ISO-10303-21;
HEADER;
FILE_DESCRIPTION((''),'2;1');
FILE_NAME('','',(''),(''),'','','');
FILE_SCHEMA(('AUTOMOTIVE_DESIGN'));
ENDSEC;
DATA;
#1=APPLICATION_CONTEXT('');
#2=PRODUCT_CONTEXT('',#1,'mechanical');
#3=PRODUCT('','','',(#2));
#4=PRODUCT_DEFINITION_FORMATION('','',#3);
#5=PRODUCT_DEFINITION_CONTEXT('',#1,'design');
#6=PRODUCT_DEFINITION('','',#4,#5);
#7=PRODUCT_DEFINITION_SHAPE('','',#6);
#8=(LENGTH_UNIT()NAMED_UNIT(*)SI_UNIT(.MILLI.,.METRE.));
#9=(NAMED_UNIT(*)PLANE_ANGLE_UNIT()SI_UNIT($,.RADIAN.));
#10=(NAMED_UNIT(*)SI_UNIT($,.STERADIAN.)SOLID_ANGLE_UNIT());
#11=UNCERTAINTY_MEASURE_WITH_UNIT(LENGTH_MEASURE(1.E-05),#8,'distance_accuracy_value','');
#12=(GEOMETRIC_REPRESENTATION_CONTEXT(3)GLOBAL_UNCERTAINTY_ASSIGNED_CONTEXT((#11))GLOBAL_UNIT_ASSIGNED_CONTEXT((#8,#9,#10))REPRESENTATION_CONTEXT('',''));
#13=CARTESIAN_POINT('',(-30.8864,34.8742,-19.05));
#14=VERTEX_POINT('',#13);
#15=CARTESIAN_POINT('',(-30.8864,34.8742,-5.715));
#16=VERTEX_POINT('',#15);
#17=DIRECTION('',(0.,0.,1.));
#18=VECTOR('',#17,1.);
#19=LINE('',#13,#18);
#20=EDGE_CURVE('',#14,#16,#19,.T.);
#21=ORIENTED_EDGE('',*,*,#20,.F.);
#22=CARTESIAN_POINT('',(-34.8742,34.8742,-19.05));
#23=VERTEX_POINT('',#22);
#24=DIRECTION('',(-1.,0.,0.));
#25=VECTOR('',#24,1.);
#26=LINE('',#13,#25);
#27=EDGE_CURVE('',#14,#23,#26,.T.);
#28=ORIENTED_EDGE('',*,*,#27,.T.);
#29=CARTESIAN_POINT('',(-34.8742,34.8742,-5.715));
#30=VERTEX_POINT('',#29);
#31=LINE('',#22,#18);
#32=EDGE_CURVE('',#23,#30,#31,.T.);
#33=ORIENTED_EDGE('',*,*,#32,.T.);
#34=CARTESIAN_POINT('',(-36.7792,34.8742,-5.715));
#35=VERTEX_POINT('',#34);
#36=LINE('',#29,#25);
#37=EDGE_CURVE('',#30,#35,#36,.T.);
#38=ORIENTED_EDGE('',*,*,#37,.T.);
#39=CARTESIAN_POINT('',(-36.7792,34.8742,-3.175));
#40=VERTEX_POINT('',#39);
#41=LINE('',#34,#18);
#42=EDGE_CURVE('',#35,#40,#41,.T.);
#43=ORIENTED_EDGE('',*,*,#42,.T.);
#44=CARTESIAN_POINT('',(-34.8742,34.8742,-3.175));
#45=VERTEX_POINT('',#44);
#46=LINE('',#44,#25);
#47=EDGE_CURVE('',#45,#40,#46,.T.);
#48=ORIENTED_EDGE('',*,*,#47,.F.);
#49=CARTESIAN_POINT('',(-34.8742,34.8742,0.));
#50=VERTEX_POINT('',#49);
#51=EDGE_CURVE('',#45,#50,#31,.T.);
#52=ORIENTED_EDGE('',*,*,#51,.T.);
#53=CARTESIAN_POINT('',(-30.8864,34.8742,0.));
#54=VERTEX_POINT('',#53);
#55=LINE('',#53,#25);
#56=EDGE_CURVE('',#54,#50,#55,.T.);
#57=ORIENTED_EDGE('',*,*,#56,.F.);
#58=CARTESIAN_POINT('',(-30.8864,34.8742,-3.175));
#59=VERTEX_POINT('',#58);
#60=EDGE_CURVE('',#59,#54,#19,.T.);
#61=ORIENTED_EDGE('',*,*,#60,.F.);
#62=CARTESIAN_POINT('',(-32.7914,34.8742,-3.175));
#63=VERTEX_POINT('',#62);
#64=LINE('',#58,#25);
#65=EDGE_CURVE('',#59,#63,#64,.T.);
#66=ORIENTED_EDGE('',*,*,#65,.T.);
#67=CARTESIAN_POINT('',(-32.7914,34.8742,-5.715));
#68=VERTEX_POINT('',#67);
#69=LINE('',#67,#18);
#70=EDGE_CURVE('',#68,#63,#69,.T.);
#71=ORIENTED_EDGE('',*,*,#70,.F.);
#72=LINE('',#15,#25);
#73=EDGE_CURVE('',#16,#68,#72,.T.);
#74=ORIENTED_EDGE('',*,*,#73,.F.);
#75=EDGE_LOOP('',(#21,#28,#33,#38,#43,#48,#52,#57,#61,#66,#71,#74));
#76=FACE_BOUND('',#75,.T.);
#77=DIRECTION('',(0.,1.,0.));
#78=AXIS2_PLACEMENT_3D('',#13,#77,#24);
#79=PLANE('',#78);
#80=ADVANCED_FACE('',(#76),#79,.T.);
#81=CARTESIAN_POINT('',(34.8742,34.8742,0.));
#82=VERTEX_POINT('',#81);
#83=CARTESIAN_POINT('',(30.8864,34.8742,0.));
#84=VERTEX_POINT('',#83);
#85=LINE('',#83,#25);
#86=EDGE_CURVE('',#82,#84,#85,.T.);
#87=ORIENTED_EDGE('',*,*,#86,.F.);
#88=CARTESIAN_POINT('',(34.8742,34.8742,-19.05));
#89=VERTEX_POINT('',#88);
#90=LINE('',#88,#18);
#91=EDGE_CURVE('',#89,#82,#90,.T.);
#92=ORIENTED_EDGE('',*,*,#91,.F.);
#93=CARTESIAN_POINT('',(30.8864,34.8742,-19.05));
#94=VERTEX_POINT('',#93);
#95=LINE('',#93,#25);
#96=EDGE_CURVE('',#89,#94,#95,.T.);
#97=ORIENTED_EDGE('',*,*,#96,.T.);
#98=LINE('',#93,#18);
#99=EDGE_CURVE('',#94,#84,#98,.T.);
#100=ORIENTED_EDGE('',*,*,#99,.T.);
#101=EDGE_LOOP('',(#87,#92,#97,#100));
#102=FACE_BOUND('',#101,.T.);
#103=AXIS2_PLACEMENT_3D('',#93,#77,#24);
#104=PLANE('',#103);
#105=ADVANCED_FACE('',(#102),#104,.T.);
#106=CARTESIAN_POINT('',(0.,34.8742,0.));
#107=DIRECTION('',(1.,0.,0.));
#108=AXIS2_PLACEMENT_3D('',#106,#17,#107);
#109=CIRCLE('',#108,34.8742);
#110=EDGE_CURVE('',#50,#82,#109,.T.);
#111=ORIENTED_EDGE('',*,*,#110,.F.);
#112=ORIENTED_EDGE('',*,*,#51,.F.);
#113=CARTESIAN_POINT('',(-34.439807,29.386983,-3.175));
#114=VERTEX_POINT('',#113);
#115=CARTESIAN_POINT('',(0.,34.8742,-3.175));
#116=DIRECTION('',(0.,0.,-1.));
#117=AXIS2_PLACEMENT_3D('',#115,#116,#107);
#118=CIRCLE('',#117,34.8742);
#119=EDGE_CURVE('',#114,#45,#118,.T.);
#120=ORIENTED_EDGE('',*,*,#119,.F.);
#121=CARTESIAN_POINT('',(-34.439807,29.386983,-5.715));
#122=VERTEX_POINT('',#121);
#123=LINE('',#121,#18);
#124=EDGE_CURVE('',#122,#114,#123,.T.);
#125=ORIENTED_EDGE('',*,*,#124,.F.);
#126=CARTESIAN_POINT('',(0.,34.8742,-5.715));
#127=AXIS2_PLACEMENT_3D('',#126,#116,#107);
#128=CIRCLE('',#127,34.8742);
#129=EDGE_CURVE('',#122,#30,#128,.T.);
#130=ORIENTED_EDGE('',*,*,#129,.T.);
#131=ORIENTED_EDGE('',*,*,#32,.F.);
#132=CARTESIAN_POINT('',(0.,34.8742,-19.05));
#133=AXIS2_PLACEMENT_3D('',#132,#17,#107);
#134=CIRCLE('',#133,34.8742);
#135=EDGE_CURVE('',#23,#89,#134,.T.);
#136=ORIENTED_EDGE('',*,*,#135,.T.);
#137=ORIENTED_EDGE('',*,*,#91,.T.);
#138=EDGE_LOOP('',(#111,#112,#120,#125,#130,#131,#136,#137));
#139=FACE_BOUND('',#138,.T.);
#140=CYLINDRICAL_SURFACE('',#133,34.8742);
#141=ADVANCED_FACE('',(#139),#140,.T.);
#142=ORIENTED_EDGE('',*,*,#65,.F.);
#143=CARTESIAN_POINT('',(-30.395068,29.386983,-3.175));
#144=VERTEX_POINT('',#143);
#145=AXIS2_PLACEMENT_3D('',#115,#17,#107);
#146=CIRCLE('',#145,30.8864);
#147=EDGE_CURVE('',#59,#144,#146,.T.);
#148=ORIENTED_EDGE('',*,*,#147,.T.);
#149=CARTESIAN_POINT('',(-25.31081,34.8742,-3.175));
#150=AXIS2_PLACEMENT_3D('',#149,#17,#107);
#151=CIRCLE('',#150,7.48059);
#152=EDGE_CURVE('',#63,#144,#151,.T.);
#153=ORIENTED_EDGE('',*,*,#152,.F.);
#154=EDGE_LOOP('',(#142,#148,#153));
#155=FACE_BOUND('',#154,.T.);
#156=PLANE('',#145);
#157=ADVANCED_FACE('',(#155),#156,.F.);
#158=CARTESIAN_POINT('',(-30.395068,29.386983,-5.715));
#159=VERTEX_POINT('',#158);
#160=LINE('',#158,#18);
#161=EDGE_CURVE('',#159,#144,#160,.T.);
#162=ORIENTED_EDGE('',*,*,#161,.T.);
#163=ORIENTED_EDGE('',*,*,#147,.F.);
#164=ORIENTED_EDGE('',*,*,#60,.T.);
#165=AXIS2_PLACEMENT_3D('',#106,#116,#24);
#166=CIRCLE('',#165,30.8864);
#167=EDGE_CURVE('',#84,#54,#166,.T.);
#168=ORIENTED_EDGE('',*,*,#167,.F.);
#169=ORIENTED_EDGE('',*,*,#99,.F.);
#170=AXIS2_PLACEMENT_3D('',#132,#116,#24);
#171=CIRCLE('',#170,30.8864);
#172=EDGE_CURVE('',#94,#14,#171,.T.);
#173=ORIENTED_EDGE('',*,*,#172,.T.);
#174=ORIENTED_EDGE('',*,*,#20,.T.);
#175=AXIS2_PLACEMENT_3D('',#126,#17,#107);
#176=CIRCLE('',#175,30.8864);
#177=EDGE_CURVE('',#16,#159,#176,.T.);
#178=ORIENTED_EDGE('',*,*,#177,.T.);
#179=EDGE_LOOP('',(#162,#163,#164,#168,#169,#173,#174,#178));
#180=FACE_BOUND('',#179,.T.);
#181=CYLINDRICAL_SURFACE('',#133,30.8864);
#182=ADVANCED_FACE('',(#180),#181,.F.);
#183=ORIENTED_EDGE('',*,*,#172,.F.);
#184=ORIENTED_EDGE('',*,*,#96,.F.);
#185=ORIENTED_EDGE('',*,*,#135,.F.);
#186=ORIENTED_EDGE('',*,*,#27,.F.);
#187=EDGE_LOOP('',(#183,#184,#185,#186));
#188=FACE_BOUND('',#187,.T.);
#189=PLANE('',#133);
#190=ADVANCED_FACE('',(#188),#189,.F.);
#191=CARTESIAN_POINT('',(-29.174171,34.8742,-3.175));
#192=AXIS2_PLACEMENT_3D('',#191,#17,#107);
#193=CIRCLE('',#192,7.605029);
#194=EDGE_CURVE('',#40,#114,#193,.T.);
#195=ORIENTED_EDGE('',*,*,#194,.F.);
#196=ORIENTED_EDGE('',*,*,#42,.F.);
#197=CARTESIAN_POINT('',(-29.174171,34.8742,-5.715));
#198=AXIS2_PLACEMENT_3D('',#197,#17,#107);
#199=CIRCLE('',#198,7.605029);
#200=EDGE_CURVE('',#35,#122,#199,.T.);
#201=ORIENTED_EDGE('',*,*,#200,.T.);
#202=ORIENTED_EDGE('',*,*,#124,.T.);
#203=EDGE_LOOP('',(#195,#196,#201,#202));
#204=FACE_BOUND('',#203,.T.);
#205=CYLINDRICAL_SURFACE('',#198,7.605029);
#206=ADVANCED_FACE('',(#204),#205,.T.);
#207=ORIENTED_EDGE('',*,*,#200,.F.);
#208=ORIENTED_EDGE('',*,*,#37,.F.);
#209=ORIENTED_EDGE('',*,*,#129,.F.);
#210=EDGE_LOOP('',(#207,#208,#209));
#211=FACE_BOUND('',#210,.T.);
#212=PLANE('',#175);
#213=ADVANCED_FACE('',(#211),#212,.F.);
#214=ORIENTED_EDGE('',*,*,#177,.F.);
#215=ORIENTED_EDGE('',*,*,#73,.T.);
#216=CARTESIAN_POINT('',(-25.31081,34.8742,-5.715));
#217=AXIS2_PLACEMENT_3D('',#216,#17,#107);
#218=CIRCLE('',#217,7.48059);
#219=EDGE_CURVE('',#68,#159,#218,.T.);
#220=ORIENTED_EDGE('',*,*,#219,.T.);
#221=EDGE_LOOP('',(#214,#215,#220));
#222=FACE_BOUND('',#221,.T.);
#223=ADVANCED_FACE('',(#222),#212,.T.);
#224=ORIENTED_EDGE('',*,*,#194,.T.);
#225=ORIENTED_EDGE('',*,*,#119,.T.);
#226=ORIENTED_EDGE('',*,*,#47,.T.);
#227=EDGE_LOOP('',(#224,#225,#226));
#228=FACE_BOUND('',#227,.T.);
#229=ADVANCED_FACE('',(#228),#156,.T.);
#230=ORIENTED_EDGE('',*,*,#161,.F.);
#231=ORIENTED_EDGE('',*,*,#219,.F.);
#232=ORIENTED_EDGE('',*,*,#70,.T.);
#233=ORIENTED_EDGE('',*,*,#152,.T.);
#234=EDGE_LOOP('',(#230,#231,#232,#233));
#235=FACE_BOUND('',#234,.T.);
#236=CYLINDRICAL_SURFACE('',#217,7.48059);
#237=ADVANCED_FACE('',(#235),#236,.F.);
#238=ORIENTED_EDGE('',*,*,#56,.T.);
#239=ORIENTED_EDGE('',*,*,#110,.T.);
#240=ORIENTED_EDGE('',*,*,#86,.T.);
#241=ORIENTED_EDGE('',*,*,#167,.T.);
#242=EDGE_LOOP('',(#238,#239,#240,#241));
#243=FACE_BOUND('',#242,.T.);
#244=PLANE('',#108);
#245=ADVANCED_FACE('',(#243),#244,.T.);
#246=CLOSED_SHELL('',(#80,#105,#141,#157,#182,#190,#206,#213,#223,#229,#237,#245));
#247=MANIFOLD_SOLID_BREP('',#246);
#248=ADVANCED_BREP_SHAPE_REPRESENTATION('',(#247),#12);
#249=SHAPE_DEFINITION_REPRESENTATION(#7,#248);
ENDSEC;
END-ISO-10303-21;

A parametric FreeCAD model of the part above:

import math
import FreeCAD as App
import Part
import Sketcher
Q = App.Units.Quantity

doc = App.newDocument("Part")
body = doc.addObject("PartDesign::Body", "Body")

# Sketch on XY plane
sketch1 = body.newObject("Sketcher::SketchObject", "Sketch")
sketch1.AttachmentSupport = (doc.getObject("XY_Plane"), [""])
sketch1.MapMode = "FlatFace"
sketch1.addGeometry([
    Part.LineSegment(App.Vector(-30.9, 34.9, 0), App.Vector(-34.9, 34.9, 0)),
    Part.ArcOfCircle(Part.Circle(App.Vector(0, 34.9, 0), App.Vector(0, 0, 1), 34.9), math.radians(180), math.radians(360)),
    Part.LineSegment(App.Vector(34.9, 34.9, 0), App.Vector(30.9, 34.9, 0)),
    Part.ArcOfCircle(Part.Circle(App.Vector(0, 34.9, 0), App.Vector(0, 0, 1), 30.9), math.radians(180), math.radians(360)),
], False)
sketch1.addConstraint([
    Sketcher.Constraint("Coincident", 0, 2, 1, 1),
    Sketcher.Constraint("Coincident", 1, 2, 2, 1),
    Sketcher.Constraint("Coincident", 2, 2, 3, 2),
    Sketcher.Constraint("Coincident", 3, 1, 0, 1),
    Sketcher.Constraint("Horizontal", 0),
    Sketcher.Constraint("Horizontal", 2),
    Sketcher.Constraint("Coincident", 3, 3, 1, 3),
    Sketcher.Constraint("Symmetric", 0, 2, 1, 2, -2),
    Sketcher.Constraint("Horizontal", 3, 3, 0, 2),
    Sketcher.Constraint("Radius", 1, Q("1.373 in")),
    Sketcher.Constraint("Radius", 3, Q("1.216 in")),
    Sketcher.Constraint("DistanceY", -1, 1, 1, 3, Q("1.373 in")),
])
pad1 = body.newObject("PartDesign::Pad", "Pad")
pad1.Profile = sketch1
pad1.Length = Q("0.75 in")
pad1.Reversed = True

# Sketch on XY plane
sketch2 = body.newObject("Sketcher::SketchObject", "Sketch001")
sketch2.AttachmentSupport = (doc.getObject("XY_Plane"), [""])
sketch2.MapMode = "FlatFace"
sketch2.AttachmentOffset = App.Placement(App.Vector(0, 0, -0.125 * 25.4), App.Rotation())
sketch2.addGeometry([
    Part.LineSegment(App.Vector(-34.9, 34.9, 0), App.Vector(-36.8, 34.9, 0)),
    Part.ArcOfCircle(Part.Circle(App.Vector(-29.2, 34.9, 0), App.Vector(0, 0, 1), 7.6), math.radians(-180), math.radians(-134)),
    Part.ArcOfCircle(Part.Circle(App.Vector(0, 34.9, 0), App.Vector(0, 0, 1), 34.9), math.radians(180), math.radians(189.05)),
], False)
sketch2.addConstraint([
    Sketcher.Constraint("Coincident", 0, 2, 1, 1),
    Sketcher.Constraint("Coincident", 1, 2, 2, 2),
    Sketcher.Constraint("Coincident", 2, 1, 0, 1),
    Sketcher.Constraint("Horizontal", 0),
    Sketcher.Constraint("PointOnObject", 2, 3, -2),
    Sketcher.Constraint("Horizontal", 1, 3, 2, 3),
    Sketcher.Constraint("Horizontal", 2, 3, 0, 2),
    Sketcher.Constraint("Radius", 2, Q("1.373 in")),
    Sketcher.Constraint("DistanceX", 0, 2, 0, 1, Q("0.075 in")),
    Sketcher.Constraint("DistanceY", -1, 1, 1, 3, Q("1.373 in")),
    Sketcher.Constraint("Radius", 1, Q("7.605029 mm")),
])
pad2 = body.newObject("PartDesign::Pad", "Pad001")
pad2.Profile = sketch2
pad2.Length = Q("0.1 in")
pad2.Reversed = True

# Sketch on XY plane
sketch3 = body.newObject("Sketcher::SketchObject", "Sketch002")
sketch3.AttachmentSupport = (doc.getObject("XY_Plane"), [""])
sketch3.MapMode = "FlatFace"
sketch3.AttachmentOffset = App.Placement(App.Vector(0, 0, -0.125 * 25.4), App.Rotation())
sketch3.addGeometry([
    Part.LineSegment(App.Vector(-30.9, 34.9, 0), App.Vector(-32.8, 34.9, 0)),
    Part.ArcOfCircle(Part.Circle(App.Vector(-25.3, 34.9, 0), App.Vector(0, 0, 1), 7.5), math.radians(180), math.radians(227)),
    Part.ArcOfCircle(Part.Circle(App.Vector(0, 34.9, 0), App.Vector(0, 0, 1), 30.9), math.radians(180), math.radians(190.23)),
], False)
sketch3.addConstraint([
    Sketcher.Constraint("Coincident", 0, 2, 1, 1),
    Sketcher.Constraint("Coincident", 1, 2, 2, 2),
    Sketcher.Constraint("Coincident", 2, 1, 0, 1),
    Sketcher.Constraint("Horizontal", 0),
    Sketcher.Constraint("PointOnObject", 2, 3, -2),
    Sketcher.Constraint("Horizontal", 1, 3, 2, 3),
    Sketcher.Constraint("Horizontal", 2, 3, 0, 2),
    Sketcher.Constraint("Radius", 2, Q("1.216 in")),
    Sketcher.Constraint("DistanceX", 0, 2, 0, 1, Q("0.075 in")),
    Sketcher.Constraint("DistanceY", -1, 1, 1, 3, Q("1.373 in")),
    Sketcher.Constraint("Radius", 1, Q("7.48059 mm")),
])
pocket1 = body.newObject("PartDesign::Pocket", "Pocket")
pocket1.Profile = sketch3
pocket1.Length = Q("0.1 in")

doc.recompute()
